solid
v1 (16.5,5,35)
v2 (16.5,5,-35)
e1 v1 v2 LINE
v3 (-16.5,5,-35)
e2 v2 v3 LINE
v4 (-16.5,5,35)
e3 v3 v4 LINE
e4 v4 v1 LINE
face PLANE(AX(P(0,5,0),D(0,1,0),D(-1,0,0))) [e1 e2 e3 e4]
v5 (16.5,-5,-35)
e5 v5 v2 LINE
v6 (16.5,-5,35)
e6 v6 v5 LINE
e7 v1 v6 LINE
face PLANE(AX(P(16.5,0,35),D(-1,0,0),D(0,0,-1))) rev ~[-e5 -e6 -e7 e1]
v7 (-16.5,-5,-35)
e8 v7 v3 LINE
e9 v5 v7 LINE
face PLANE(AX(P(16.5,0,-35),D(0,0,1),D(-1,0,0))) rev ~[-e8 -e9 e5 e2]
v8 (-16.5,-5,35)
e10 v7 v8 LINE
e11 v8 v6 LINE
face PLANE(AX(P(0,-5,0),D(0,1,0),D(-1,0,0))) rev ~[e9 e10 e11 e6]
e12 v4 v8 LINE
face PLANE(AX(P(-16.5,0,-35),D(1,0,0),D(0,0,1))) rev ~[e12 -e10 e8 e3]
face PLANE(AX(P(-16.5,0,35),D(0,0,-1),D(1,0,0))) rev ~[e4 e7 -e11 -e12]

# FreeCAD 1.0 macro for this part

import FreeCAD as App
import Part
import Sketcher

V = App.Vector
Q = App.Units.Quantity


def add_polygon(sketch, points):
    """Adds a closed chain of lines whose ends are joined by coincident constraints."""
    first, n = sketch.GeometryCount, len(points)
    for a, b in zip(points, points[1:] + points[:1]):
        sketch.addGeometry(Part.LineSegment(App.Vector(*a, 0), App.Vector(*b, 0)), False)
    for i in range(n):
        sketch.addConstraint(Sketcher.Constraint("Coincident", first + i, 2, first + (i + 1) % n, 1))

doc = App.newDocument("Part")
body = doc.addObject("PartDesign::Body", "Body")

sketch1 = body.newObject("Sketcher::SketchObject", "Sketch")
sketch1.AttachmentSupport = (doc.getObject("XZ_Plane"), [""])
sketch1.MapMode = "FlatFace"
add_polygon(sketch1, [(16, 35), (16, -35), (-16, -35), (-16, 35)])
sketch1.addConstraint(Sketcher.Constraint("Vertical", 0))
sketch1.addConstraint(Sketcher.Constraint("Horizontal", 1))
sketch1.addConstraint(Sketcher.Constraint("Vertical", 2))
sketch1.addConstraint(Sketcher.Constraint("Horizontal", 3))
sketch1.addConstraint(Sketcher.Constraint("Symmetric", 0, 2, 2, 2, -1, 1))
sketch1.addConstraint(Sketcher.Constraint("DistanceX", 1, 2, 1, 1, Q("33 mm")))
sketch1.addConstraint(Sketcher.Constraint("DistanceY", 0, 2, 0, 1, Q("70 mm")))
pad1 = body.newObject("PartDesign::Pad", "Pad")
pad1.Profile = sketch1
pad1.Length = 10
pad1.Midplane = True

doc.recompute()
